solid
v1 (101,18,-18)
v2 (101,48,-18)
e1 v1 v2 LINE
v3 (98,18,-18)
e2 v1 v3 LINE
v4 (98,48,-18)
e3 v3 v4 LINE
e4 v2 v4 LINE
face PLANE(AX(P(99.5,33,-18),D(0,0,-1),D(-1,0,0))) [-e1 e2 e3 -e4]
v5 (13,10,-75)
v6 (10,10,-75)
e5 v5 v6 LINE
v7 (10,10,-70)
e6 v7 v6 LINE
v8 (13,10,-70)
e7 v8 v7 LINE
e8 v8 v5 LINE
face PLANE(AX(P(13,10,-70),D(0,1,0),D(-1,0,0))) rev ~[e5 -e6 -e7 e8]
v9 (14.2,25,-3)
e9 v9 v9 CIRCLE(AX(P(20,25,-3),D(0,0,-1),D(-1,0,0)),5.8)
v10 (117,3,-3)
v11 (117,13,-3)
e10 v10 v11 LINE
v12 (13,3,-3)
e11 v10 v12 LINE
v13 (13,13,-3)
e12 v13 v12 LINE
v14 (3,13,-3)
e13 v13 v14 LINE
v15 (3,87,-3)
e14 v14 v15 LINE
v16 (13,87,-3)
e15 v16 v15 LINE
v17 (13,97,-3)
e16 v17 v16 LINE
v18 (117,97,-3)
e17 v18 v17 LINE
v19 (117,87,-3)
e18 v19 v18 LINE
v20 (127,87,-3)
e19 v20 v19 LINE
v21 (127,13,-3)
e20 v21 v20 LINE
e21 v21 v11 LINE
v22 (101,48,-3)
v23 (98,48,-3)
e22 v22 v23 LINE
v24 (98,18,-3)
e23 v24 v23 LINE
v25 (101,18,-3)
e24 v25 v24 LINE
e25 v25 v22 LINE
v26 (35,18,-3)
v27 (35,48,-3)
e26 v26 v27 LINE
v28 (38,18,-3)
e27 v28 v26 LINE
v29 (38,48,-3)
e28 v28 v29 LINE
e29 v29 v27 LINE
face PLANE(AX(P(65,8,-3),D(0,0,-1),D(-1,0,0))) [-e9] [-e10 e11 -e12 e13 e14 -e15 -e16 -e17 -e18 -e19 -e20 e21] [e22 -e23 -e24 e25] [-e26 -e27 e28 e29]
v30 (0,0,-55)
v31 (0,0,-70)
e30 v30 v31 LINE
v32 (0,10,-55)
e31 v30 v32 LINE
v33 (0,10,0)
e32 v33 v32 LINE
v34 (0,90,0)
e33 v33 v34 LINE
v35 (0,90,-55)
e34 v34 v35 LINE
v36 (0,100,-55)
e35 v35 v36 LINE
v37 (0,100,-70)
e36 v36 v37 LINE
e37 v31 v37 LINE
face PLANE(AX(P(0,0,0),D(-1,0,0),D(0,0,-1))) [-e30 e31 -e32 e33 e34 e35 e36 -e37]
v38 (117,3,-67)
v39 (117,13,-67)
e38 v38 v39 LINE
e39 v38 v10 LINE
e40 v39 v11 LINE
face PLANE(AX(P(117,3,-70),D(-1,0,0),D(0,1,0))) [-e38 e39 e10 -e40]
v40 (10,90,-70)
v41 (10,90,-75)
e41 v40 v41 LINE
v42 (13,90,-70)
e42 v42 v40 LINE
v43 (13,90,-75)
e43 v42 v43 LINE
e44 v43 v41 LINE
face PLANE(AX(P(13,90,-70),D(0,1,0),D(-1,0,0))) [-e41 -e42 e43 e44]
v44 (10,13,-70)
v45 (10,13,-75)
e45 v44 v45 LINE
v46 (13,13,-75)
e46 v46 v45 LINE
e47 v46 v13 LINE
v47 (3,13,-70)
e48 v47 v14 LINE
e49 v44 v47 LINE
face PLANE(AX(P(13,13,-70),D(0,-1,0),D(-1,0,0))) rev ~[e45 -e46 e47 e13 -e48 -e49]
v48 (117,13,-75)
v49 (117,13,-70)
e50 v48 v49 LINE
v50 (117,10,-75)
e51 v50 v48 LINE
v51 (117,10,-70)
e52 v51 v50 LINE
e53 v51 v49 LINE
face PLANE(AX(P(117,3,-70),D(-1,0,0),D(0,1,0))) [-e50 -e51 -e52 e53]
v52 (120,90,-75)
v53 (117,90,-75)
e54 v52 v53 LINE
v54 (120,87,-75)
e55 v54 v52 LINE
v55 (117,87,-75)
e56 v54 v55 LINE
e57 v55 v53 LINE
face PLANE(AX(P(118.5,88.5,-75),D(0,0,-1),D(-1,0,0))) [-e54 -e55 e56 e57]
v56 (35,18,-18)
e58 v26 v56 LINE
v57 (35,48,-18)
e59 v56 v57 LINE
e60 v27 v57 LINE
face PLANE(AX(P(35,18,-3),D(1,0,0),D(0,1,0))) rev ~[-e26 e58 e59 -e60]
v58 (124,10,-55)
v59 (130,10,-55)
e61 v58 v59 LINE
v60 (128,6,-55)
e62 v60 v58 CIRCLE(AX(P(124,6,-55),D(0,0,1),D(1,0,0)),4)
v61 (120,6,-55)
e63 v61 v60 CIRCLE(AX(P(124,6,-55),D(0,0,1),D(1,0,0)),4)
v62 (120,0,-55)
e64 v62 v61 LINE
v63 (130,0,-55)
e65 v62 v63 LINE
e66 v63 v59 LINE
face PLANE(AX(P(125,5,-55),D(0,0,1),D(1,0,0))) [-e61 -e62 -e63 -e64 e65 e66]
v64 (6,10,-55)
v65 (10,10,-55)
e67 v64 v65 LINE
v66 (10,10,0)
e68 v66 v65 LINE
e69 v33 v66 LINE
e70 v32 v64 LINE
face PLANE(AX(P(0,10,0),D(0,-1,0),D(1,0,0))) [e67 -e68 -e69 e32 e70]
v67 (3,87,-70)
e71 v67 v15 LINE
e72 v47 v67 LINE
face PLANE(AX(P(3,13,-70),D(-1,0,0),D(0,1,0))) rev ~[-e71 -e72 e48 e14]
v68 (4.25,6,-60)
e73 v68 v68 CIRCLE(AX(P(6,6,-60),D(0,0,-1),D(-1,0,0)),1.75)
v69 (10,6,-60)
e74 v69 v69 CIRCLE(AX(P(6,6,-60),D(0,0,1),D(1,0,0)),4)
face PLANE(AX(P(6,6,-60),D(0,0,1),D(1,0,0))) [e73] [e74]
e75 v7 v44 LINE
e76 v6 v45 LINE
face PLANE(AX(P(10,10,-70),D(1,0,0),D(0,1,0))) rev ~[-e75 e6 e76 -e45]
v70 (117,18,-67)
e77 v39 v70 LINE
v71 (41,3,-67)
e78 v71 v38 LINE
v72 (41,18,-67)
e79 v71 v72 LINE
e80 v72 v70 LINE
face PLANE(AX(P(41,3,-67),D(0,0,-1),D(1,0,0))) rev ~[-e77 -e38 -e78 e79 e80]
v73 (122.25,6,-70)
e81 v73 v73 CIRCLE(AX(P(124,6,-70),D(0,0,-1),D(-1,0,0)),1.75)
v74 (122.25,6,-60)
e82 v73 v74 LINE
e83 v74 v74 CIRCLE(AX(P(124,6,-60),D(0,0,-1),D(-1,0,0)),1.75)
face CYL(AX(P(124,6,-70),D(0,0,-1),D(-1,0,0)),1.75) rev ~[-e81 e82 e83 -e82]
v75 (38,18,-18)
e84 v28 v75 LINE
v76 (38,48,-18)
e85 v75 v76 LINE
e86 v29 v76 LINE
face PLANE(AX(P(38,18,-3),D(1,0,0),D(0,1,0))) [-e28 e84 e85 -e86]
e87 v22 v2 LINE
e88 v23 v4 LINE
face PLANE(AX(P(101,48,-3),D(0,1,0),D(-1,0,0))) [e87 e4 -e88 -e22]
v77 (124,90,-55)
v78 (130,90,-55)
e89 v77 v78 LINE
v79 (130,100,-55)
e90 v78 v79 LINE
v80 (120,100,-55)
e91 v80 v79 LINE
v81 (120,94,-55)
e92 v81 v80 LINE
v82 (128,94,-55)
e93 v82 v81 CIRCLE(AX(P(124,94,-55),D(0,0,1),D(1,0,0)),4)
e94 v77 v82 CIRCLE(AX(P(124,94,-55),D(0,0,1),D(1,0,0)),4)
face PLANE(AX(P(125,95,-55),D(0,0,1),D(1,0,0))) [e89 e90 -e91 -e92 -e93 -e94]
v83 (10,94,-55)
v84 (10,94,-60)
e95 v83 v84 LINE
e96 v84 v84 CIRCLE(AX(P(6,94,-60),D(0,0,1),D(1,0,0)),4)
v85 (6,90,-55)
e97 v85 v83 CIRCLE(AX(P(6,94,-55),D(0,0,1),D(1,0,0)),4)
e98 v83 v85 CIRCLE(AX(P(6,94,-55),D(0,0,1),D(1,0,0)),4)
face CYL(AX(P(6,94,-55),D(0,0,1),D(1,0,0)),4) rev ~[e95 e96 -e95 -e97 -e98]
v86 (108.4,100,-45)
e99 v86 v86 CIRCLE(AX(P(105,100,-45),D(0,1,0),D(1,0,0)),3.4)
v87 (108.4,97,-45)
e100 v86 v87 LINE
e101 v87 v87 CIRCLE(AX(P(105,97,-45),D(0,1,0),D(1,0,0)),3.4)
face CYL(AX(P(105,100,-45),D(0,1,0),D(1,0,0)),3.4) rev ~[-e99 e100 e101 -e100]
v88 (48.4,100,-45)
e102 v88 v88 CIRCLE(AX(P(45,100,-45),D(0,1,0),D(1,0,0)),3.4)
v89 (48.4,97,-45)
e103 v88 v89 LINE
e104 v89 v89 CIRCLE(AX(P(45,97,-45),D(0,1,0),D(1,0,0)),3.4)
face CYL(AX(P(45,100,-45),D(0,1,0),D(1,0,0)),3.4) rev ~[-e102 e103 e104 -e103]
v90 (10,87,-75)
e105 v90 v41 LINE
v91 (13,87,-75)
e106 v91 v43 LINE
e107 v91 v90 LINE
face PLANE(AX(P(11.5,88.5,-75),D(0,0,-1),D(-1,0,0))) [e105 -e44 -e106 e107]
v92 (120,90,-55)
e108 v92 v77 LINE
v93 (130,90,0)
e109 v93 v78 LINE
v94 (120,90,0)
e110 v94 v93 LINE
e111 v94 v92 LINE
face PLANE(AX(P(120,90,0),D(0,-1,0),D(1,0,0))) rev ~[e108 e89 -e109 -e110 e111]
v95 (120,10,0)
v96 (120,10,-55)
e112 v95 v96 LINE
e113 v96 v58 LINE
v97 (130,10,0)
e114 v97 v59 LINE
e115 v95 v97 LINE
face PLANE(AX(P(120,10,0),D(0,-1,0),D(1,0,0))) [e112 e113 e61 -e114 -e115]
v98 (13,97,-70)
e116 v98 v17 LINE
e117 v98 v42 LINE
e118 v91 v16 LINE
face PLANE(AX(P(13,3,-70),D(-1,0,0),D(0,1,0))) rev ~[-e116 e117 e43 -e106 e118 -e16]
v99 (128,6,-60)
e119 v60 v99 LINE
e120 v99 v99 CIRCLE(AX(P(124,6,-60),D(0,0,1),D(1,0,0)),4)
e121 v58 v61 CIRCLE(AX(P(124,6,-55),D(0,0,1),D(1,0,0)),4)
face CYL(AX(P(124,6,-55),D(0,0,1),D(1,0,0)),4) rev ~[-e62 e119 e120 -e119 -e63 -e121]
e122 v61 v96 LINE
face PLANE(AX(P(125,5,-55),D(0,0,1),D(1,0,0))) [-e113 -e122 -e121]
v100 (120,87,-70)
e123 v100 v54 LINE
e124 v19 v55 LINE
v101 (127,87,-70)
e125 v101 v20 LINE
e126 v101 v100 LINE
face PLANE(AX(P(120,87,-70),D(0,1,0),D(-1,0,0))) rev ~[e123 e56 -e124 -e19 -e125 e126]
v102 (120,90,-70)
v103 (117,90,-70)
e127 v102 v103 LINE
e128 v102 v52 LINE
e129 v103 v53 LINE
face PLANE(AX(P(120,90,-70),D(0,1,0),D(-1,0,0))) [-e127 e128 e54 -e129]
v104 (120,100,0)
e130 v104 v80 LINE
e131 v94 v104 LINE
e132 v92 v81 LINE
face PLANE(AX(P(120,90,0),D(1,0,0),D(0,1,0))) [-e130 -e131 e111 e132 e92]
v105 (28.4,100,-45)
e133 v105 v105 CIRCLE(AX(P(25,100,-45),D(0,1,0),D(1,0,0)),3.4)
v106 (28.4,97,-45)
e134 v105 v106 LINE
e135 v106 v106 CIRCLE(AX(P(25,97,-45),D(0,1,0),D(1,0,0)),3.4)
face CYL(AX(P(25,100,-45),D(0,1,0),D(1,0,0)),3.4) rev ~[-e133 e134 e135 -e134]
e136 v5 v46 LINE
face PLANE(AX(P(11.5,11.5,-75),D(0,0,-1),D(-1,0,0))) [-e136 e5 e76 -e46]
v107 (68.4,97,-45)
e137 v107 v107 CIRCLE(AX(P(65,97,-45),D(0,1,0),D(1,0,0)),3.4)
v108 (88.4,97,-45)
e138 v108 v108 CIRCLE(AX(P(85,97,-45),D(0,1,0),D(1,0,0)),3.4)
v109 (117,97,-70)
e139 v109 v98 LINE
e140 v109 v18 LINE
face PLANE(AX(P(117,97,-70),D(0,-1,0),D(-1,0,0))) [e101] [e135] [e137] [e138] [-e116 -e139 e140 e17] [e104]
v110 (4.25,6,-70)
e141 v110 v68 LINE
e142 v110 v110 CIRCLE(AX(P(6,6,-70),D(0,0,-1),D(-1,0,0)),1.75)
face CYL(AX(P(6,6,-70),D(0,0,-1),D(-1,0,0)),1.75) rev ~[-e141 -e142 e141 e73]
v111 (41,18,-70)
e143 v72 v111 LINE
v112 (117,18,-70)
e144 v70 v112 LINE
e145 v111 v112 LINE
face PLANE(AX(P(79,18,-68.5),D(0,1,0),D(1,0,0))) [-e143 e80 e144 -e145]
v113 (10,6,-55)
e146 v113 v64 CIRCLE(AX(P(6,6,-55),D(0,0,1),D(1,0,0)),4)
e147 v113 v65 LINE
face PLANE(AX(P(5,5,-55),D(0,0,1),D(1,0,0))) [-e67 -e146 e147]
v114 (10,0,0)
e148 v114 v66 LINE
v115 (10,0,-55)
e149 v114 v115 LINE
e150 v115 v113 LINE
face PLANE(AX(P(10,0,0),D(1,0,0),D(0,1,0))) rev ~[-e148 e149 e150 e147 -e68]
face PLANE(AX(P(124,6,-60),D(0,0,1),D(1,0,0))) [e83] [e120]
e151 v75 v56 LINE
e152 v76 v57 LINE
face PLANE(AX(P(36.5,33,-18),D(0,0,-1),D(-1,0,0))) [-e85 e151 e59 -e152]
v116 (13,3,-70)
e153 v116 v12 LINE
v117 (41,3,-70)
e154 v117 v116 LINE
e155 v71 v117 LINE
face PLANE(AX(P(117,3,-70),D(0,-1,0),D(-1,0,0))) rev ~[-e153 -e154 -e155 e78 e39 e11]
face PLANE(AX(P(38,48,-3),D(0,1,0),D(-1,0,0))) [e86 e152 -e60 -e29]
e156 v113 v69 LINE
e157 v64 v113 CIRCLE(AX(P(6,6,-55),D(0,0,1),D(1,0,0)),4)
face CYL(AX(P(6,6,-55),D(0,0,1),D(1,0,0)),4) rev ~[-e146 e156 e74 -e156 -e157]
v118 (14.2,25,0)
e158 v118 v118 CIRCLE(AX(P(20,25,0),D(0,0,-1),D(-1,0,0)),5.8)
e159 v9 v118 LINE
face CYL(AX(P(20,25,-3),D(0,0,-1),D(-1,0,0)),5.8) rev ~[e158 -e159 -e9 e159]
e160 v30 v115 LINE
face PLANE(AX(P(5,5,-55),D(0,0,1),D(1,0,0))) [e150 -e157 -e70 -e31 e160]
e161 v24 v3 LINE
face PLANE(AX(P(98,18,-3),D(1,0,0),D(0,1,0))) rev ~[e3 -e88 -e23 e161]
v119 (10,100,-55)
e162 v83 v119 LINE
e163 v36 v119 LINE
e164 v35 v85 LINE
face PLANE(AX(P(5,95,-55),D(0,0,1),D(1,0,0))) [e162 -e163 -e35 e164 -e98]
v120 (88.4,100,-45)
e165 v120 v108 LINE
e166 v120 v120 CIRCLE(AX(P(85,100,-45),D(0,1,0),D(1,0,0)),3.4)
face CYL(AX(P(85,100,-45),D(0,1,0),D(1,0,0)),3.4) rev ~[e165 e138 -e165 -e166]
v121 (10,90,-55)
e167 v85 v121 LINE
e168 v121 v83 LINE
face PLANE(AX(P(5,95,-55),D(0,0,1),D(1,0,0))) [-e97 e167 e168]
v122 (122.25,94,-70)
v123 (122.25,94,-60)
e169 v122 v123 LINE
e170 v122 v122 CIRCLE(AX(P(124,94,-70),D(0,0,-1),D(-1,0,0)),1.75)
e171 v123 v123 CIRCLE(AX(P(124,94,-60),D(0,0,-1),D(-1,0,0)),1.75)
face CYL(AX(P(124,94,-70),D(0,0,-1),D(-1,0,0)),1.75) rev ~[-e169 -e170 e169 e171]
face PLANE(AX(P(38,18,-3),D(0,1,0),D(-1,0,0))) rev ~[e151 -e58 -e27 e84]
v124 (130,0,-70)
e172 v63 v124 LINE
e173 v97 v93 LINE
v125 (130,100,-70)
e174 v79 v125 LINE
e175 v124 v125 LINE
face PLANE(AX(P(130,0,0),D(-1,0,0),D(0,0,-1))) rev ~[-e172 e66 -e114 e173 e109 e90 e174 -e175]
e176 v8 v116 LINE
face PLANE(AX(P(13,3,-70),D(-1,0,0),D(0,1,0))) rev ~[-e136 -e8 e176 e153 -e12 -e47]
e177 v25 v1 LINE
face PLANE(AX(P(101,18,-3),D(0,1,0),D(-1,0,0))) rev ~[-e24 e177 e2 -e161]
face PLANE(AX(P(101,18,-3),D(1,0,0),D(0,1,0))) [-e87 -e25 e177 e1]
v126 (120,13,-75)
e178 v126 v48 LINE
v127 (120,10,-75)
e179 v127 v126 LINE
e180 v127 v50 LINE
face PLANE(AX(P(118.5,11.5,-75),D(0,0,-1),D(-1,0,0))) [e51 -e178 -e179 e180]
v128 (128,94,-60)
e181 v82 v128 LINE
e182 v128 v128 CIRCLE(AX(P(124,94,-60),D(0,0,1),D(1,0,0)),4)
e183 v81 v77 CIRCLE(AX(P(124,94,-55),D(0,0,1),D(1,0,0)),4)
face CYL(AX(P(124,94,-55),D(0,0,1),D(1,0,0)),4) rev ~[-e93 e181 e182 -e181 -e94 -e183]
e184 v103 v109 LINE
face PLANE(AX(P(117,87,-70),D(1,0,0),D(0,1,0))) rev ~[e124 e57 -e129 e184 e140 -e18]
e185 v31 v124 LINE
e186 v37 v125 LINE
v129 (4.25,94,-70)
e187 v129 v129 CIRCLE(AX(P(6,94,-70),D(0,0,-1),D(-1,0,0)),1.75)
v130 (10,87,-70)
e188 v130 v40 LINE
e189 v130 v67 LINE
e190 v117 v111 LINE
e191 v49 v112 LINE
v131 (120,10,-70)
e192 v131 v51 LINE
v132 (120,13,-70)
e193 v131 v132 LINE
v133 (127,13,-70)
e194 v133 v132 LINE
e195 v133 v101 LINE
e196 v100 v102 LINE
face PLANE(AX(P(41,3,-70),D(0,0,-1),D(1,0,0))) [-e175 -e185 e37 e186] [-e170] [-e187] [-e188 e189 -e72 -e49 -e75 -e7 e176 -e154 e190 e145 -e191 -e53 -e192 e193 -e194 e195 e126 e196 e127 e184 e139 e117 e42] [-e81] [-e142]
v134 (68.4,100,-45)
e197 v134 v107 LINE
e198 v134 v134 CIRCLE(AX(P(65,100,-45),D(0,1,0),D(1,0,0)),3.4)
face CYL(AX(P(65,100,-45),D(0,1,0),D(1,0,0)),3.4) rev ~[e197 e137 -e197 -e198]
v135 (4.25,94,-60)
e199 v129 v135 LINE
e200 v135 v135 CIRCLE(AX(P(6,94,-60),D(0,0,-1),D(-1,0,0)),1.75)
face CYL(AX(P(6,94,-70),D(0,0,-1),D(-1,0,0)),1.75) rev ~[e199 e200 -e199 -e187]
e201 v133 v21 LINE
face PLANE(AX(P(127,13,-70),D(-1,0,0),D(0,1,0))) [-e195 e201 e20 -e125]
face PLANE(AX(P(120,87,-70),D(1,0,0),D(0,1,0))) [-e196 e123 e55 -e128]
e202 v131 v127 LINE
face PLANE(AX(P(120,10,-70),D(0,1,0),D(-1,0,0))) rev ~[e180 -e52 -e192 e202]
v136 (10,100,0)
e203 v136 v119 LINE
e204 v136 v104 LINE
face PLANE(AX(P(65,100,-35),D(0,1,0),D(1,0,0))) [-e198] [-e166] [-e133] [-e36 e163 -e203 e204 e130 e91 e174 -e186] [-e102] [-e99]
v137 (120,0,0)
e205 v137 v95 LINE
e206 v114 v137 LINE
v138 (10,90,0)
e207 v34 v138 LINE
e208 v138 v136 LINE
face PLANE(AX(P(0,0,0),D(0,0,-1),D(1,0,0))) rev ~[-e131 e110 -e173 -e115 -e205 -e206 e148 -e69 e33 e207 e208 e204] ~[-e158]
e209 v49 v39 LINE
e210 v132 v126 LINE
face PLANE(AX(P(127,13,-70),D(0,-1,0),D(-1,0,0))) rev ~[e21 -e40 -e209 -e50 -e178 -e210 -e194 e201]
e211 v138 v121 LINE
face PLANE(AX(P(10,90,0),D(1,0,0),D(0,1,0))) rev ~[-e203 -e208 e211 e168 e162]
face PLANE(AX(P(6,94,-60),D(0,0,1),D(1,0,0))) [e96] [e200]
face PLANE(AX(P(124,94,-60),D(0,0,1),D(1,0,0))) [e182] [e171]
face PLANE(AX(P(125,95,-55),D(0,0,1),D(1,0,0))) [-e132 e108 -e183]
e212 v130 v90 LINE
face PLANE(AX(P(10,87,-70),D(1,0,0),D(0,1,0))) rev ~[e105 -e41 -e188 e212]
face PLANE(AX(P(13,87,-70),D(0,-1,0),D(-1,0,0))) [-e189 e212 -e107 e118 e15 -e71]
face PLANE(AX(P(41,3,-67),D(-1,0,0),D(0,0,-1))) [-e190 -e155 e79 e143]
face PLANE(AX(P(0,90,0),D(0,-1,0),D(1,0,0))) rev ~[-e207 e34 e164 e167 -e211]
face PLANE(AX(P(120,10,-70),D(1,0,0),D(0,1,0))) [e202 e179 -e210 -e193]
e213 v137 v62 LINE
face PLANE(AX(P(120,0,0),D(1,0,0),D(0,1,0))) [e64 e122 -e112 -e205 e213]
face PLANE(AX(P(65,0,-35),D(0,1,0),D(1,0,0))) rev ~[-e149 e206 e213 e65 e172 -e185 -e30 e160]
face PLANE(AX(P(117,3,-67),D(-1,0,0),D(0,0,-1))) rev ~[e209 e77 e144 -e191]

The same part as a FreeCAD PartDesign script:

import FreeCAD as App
import Part
import Sketcher

doc = App.newDocument("Part")
body = doc.addObject("PartDesign::Body", "Body")

sketch1 = doc.addObject("Sketcher::SketchObject", "Sketch")
body.addObject(sketch1)
sketch1.AttachmentSupport = (doc.XZ_Plane, [""])
sketch1.MapMode = "FlatFace"
sketch1.addGeometry(Part.LineSegment(App.Vector(0, -70, 0), App.Vector(0, 0, 0)), False)
sketch1.addGeometry(Part.LineSegment(App.Vector(0, 0, 0), App.Vector(130, 0, 0)), False)
sketch1.addGeometry(Part.LineSegment(App.Vector(130, 0, 0), App.Vector(130, -70, 0)), False)
sketch1.addGeometry(Part.LineSegment(App.Vector(130, -70, 0), App.Vector(0, -70, 0)), False)
sketch1.addConstraint(Sketcher.Constraint("Coincident", 0, 2, 1, 1))
sketch1.addConstraint(Sketcher.Constraint("Coincident", 1, 2, 2, 1))
sketch1.addConstraint(Sketcher.Constraint("Coincident", 2, 2, 3, 1))
sketch1.addConstraint(Sketcher.Constraint("Coincident", 3, 2, 0, 1))
sketch1.addConstraint(Sketcher.Constraint("Vertical", 0))
sketch1.addConstraint(Sketcher.Constraint("Horizontal", 1))
sketch1.addConstraint(Sketcher.Constraint("Vertical", 2))
sketch1.addConstraint(Sketcher.Constraint("Horizontal", 3))
sketch1.addConstraint(Sketcher.Constraint("Coincident", 0, 2, -1, 1))
sketch1.addConstraint(Sketcher.Constraint("DistanceX", 1, 1, 1, 2, 130.0))
sketch1.addConstraint(Sketcher.Constraint("DistanceY", 0, 1, 0, 2, 70.0))
pad1 = doc.addObject("PartDesign::Pad", "Pad")
body.addObject(pad1)
pad1.Profile = sketch1
pad1.Length = 100
pad1.Reversed = True

sketch2 = doc.addObject("Sketcher::SketchObject", "Sketch001")
body.addObject(sketch2)
sketch2.AttachmentSupport = (doc.XY_Plane, [""])
sketch2.MapMode = "FlatFace"
sketch2.AttachmentOffset = App.Placement(App.Vector(0, 0, -70), App.Rotation())
sketch2.addGeometry(Part.LineSegment(App.Vector(117, 87, 0), App.Vector(117, 13, 0)), False)
sketch2.addGeometry(Part.LineSegment(App.Vector(117, 13, 0), App.Vector(13, 13, 0)), False)
sketch2.addGeometry(Part.LineSegment(App.Vector(13, 13, 0), App.Vector(13, 87, 0)), False)
sketch2.addGeometry(Part.LineSegment(App.Vector(13, 87, 0), App.Vector(117, 87, 0)), False)
sketch2.addConstraint(Sketcher.Constraint("Coincident", 0, 2, 1, 1))
sketch2.addConstraint(Sketcher.Constraint("Coincident", 1, 2, 2, 1))
sketch2.addConstraint(Sketcher.Constraint("Coincident", 2, 2, 3, 1))
sketch2.addConstraint(Sketcher.Constraint("Coincident", 3, 2, 0, 1))
sketch2.addConstraint(Sketcher.Constraint("Vertical", 0))
sketch2.addConstraint(Sketcher.Constraint("Horizontal", 1))
sketch2.addConstraint(Sketcher.Constraint("Vertical", 2))
sketch2.addConstraint(Sketcher.Constraint("Horizontal", 3))
sketch2.addConstraint(Sketcher.Constraint("DistanceX", 1, 2, 1, 1, 104.0))
sketch2.addConstraint(Sketcher.Constraint("DistanceY", 0, 2, 0, 1, 74.0))
sketch2.addConstraint(Sketcher.Constraint("DistanceX", -1, 1, 0, 2, 117.0))
sketch2.addConstraint(Sketcher.Constraint("DistanceY", -1, 1, 0, 2, 13.0))
pocket1 = doc.addObject("PartDesign::Pocket", "Pocket")
body.addObject(pocket1)
pocket1.Profile = sketch2
pocket1.Length = 67
pocket1.Reversed = True

sketch3 = doc.addObject("Sketcher::SketchObject", "Sketch002")
body.addObject(sketch3)
sketch3.AttachmentSupport = (doc.XY_Plane, [""])
sketch3.MapMode = "FlatFace"
sketch3.addGeometry(Part.LineSegment(App.Vector(0, 100, 0), App.Vector(0, 90, 0)), False)
sketch3.addGeometry(Part.LineSegment(App.Vector(0, 90, 0), App.Vector(10, 90, 0)), False)
sketch3.addGeometry(Part.LineSegment(App.Vector(10, 90, 0), App.Vector(10, 100, 0)), False)
sketch3.addGeometry(Part.LineSegment(App.Vector(10, 100, 0), App.Vector(0, 100, 0)), False)
sketch3.addGeometry(Part.LineSegment(App.Vector(120, 100, 0), App.Vector(120, 90, 0)), False)
sketch3.addGeometry(Part.LineSegment(App.Vector(120, 90, 0), App.Vector(130, 90, 0)), False)
sketch3.addGeometry(Part.LineSegment(App.Vector(130, 90, 0), App.Vector(130, 100, 0)), False)
sketch3.addGeometry(Part.LineSegment(App.Vector(130, 100, 0), App.Vector(120, 100, 0)), False)
sketch3.addGeometry(Part.LineSegment(App.Vector(0, 10, 0), App.Vector(0, 0, 0)), False)
sketch3.addGeometry(Part.LineSegment(App.Vector(0, 0, 0), App.Vector(10, 0, 0)), False)
sketch3.addGeometry(Part.LineSegment(App.Vector(10, 0, 0), App.Vector(10, 10, 0)), False)
sketch3.addGeometry(Part.LineSegment(App.Vector(10, 10, 0), App.Vector(0, 10, 0)), False)
sketch3.addGeometry(Part.LineSegment(App.Vector(120, 10, 0), App.Vector(120, 0, 0)), False)
sketch3.addGeometry(Part.LineSegment(App.Vector(120, 0, 0), App.Vector(130, 0, 0)), False)
sketch3.addGeometry(Part.LineSegment(App.Vector(130, 0, 0), App.Vector(130, 10, 0)), False)
sketch3.addGeometry(Part.LineSegment(App.Vector(130, 10, 0), App.Vector(120, 10, 0)), False)
sketch3.addConstraint(Sketcher.Constraint("Coincident", 0, 2, 1, 1))
sketch3.addConstraint(Sketcher.Constraint("Coincident", 1, 2, 2, 1))
sketch3.addConstraint(Sketcher.Constraint("Coincident", 2, 2, 3, 1))
sketch3.addConstraint(Sketcher.Constraint("Coincident", 3, 2, 0, 1))
sketch3.addConstraint(Sketcher.Constraint("Coincident", 4, 2, 5, 1))
sketch3.addConstraint(Sketcher.Constraint("Coincident", 5, 2, 6, 1))
sketch3.addConstraint(Sketcher.Constraint("Coincident", 6, 2, 7, 1))
sketch3.addConstraint(Sketcher.Constraint("Coincident", 7, 2, 4, 1))
sketch3.addConstraint(Sketcher.Constraint("Coincident", 8, 2, 9, 1))
sketch3.addConstraint(Sketcher.Constraint("Coincident", 9, 2, 10, 1))
sketch3.addConstraint(Sketcher.Constraint("Coincident", 10, 2, 11, 1))
sketch3.addConstraint(Sketcher.Constraint("Coincident", 11, 2, 8, 1))
sketch3.addConstraint(Sketcher.Constraint("Coincident", 12, 2, 13, 1))
sketch3.addConstraint(Sketcher.Constraint("Coincident", 13, 2, 14, 1))
sketch3.addConstraint(Sketcher.Constraint("Coincident", 14, 2, 15, 1))
sketch3.addConstraint(Sketcher.Constraint("Coincident", 15, 2, 12, 1))
sketch3.addConstraint(Sketcher.Constraint("Vertical", 0))
sketch3.addConstraint(Sketcher.Constraint("Horizontal", 1))
sketch3.addConstraint(Sketcher.Constraint("Vertical", 2))
sketch3.addConstraint(Sketcher.Constraint("Horizontal", 3))
sketch3.addConstraint(Sketcher.Constraint("Vertical", 4))
sketch3.addConstraint(Sketcher.Constraint("Horizontal", 5))
sketch3.addConstraint(Sketcher.Constraint("Vertical", 6))
sketch3.addConstraint(Sketcher.Constraint("Horizontal", 7))
sketch3.addConstraint(Sketcher.Constraint("Vertical", 8))
sketch3.addConstraint(Sketcher.Constraint("Horizontal", 9))
sketch3.addConstraint(Sketcher.Constraint("Vertical", 10))
sketch3.addConstraint(Sketcher.Constraint("Horizontal", 11))
sketch3.addConstraint(Sketcher.Constraint("Vertical", 12))
sketch3.addConstraint(Sketcher.Constraint("Horizontal", 13))
sketch3.addConstraint(Sketcher.Constraint("Vertical", 14))
sketch3.addConstraint(Sketcher.Constraint("Horizontal", 15))
sketch3.addConstraint(Sketcher.Constraint("Coincident", 8, 2, -1, 1))
sketch3.addConstraint(Sketcher.Constraint("PointOnObject", 0, 2, -2))
sketch3.addConstraint(Sketcher.Constraint("PointOnObject", 12, 2, -1))
sketch3.addConstraint(Sketcher.Constraint("Horizontal", 1, 2, 4, 2))
sketch3.addConstraint(Sketcher.Constraint("Horizontal", 3, 2, 6, 2))
sketch3.addConstraint(Sketcher.Constraint("Horizontal", 11, 2, 14, 2))
sketch3.addConstraint(Sketcher.Constraint("Vertical", 2, 2, 9, 2))
sketch3.addConstraint(Sketcher.Constraint("Vertical", 7, 2, 12, 2))
sketch3.addConstraint(Sketcher.Constraint("Vertical", 6, 2, 13, 2))
sketch3.addConstraint(Sketcher.Constraint("Equal", 3, 5))
sketch3.addConstraint(Sketcher.Constraint("Equal", 15, 0))
sketch3.addConstraint(Sketcher.Constraint("Equal", 6, 8))
sketch3.addConstraint(Sketcher.Constraint("DistanceX", 1, 1, 1, 2, 10.0))
sketch3.addConstraint(Sketcher.Constraint("DistanceY", -1, 1, 0, 2, 90.0))
sketch3.addConstraint(Sketcher.Constraint("DistanceX", -1, 1, 4, 2, 120.0))
pocket2 = doc.addObject("PartDesign::Pocket", "Pocket001")
body.addObject(pocket2)
pocket2.Profile = sketch3
pocket2.Length = 55

sketch4 = doc.addObject("Sketcher::SketchObject", "Sketch003")
body.addObject(sketch4)
sketch4.AttachmentSupport = (doc.XY_Plane, [""])
sketch4.MapMode = "FlatFace"
sketch4.AttachmentOffset = App.Placement(App.Vector(0, 0, -70), App.Rotation())
sketch4.addGeometry(Part.LineSegment(App.Vector(117, 97, 0), App.Vector(117, 87, 0)), False)
sketch4.addGeometry(Part.LineSegment(App.Vector(117, 87, 0), App.Vector(13, 87, 0)), False)
sketch4.addGeometry(Part.LineSegment(App.Vector(13, 87, 0), App.Vector(13, 97, 0)), False)
sketch4.addGeometry(Part.LineSegment(App.Vector(13, 97, 0), App.Vector(117, 97, 0)), False)
sketch4.addGeometry(Part.LineSegment(App.Vector(117, 13, 0), App.Vector(117, 3, 0)), False)
sketch4.addGeometry(Part.LineSegment(App.Vector(117, 3, 0), App.Vector(13, 3, 0)), False)
sketch4.addGeometry(Part.LineSegment(App.Vector(13, 3, 0), App.Vector(13, 13, 0)), False)
sketch4.addGeometry(Part.LineSegment(App.Vector(13, 13, 0), App.Vector(117, 13, 0)), False)
sketch4.addConstraint(Sketcher.Constraint("Coincident", 0, 2, 1, 1))
sketch4.addConstraint(Sketcher.Constraint("Coincident", 1, 2, 2, 1))
sketch4.addConstraint(Sketcher.Constraint("Coincident", 2, 2, 3, 1))
sketch4.addConstraint(Sketcher.Constraint("Coincident", 3, 2, 0, 1))
sketch4.addConstraint(Sketcher.Constraint("Coincident", 4, 2, 5, 1))
sketch4.addConstraint(Sketcher.Constraint("Coincident", 5, 2, 6, 1))
sketch4.addConstraint(Sketcher.Constraint("Coincident", 6, 2, 7, 1))
sketch4.addConstraint(Sketcher.Constraint("Coincident", 7, 2, 4, 1))
sketch4.addConstraint(Sketcher.Constraint("Vertical", 0))
sketch4.addConstraint(Sketcher.Constraint("Horizontal", 1))
sketch4.addConstraint(Sketcher.Constraint("Vertical", 2))
sketch4.addConstraint(Sketcher.Constraint("Horizontal", 3))
sketch4.addConstraint(Sketcher.Constraint("Vertical", 4))
sketch4.addConstraint(Sketcher.Constraint("Horizontal", 5))
sketch4.addConstraint(Sketcher.Constraint("Vertical", 6))
sketch4.addConstraint(Sketcher.Constraint("Horizontal", 7))
sketch4.addConstraint(Sketcher.Constraint("Vertical", 3, 2, 4, 2))
sketch4.addConstraint(Sketcher.Constraint("Vertical", 2, 2, 5, 2))
sketch4.addConstraint(Sketcher.Constraint("Equal", 2, 4))
sketch4.addConstraint(Sketcher.Constraint("DistanceX", 1, 2, 1, 1, 104.0))
sketch4.addConstraint(Sketcher.Constraint("DistanceY", 0, 2, 0, 1, 10.0))
sketch4.addConstraint(Sketcher.Constraint("DistanceX", -1, 1, 0, 2, 117.0))
sketch4.addConstraint(Sketcher.Constraint("DistanceY", -1, 1, 0, 2, 87.0))
sketch4.addConstraint(Sketcher.Constraint("DistanceY", -1, 1, 4, 2, 3.0))
pocket3 = doc.addObject("PartDesign::Pocket", "Pocket002")
body.addObject(pocket3)
pocket3.Profile = sketch4
pocket3.Length = 67
pocket3.Reversed = True

sketch5 = doc.addObject("Sketcher::SketchObject", "Sketch004")
body.addObject(sketch5)
sketch5.AttachmentSupport = (doc.XY_Plane, [""])
sketch5.MapMode = "FlatFace"
sketch5.AttachmentOffset = App.Placement(App.Vector(0, 0, -70), App.Rotation())
sketch5.addGeometry(Part.LineSegment(App.Vector(127, 87, 0), App.Vector(127, 13, 0)), False)
sketch5.addGeometry(Part.LineSegment(App.Vector(127, 13, 0), App.Vector(117, 13, 0)), False)
sketch5.addGeometry(Part.LineSegment(App.Vector(117, 13, 0), App.Vector(117, 87, 0)), False)
sketch5.addGeometry(Part.LineSegment(App.Vector(117, 87, 0), App.Vector(127, 87, 0)), False)
sketch5.addGeometry(Part.LineSegment(App.Vector(13, 87, 0), App.Vector(13, 13, 0)), False)
sketch5.addGeometry(Part.LineSegment(App.Vector(13, 13, 0), App.Vector(3, 13, 0)), False)
sketch5.addGeometry(Part.LineSegment(App.Vector(3, 13, 0), App.Vector(3, 87, 0)), False)
sketch5.addGeometry(Part.LineSegment(App.Vector(3, 87, 0), App.Vector(13, 87, 0)), False)
sketch5.addConstraint(Sketcher.Constraint("Coincident", 0, 2, 1, 1))
sketch5.addConstraint(Sketcher.Constraint("Coincident", 1, 2, 2, 1))
sketch5.addConstraint(Sketcher.Constraint("Coincident", 2, 2, 3, 1))
sketch5.addConstraint(Sketcher.Constraint("Coincident", 3, 2, 0, 1))
sketch5.addConstraint(Sketcher.Constraint("Coincident", 4, 2, 5, 1))
sketch5.addConstraint(Sketcher.Constraint("Coincident", 5, 2, 6, 1))
sketch5.addConstraint(Sketcher.Constraint("Coincident", 6, 2, 7, 1))
sketch5.addConstraint(Sketcher.Constraint("Coincident", 7, 2, 4, 1))
sketch5.addConstraint(Sketcher.Constraint("Vertical", 0))
sketch5.addConstraint(Sketcher.Constraint("Horizontal", 1))
sketch5.addConstraint(Sketcher.Constraint("Vertical", 2))
sketch5.addConstraint(Sketcher.Constraint("Horizontal", 3))
sketch5.addConstraint(Sketcher.Constraint("Vertical", 4))
sketch5.addConstraint(Sketcher.Constraint("Horizontal", 5))
sketch5.addConstraint(Sketcher.Constraint("Vertical", 6))
sketch5.addConstraint(Sketcher.Constraint("Horizontal", 7))
sketch5.addConstraint(Sketcher.Constraint("Horizontal", 1, 2, 4, 2))
sketch5.addConstraint(Sketcher.Constraint("Horizontal", 3, 2, 6, 2))
sketch5.addConstraint(Sketcher.Constraint("Equal", 3, 5))
sketch5.addConstraint(Sketcher.Constraint("DistanceX", 1, 2, 1, 1, 10.0))
sketch5.addConstraint(Sketcher.Constraint("DistanceY", 0, 2, 0, 1, 74.0))
sketch5.addConstraint(Sketcher.Constraint("DistanceX", -1, 1, 0, 2, 127.0))
sketch5.addConstraint(Sketcher.Constraint("DistanceY", -1, 1, 0, 2, 13.0))
sketch5.addConstraint(Sketcher.Constraint("DistanceX", -1, 1, 4, 2, 13.0))
pocket4 = doc.addObject("PartDesign::Pocket", "Pocket003")
body.addObject(pocket4)
pocket4.Profile = sketch5
pocket4.Length = 67
pocket4.Reversed = True

sketch6 = doc.addObject("Sketcher::SketchObject", "Sketch005")
body.addObject(sketch6)
sketch6.AttachmentSupport = (doc.XY_Plane, [""])
sketch6.MapMode = "FlatFace"
sketch6.AttachmentOffset = App.Placement(App.Vector(0, 0, -70), App.Rotation())
sketch6.addGeometry(Part.Circle(App.Vector(124, 94, 0), App.Vector(0, 0, 1), 1.8), False)
sketch6.addGeometry(Part.Circle(App.Vector(124, 6, 0), App.Vector(0, 0, 1), 1.8), False)
sketch6.addGeometry(Part.Circle(App.Vector(6, 94, 0), App.Vector(0, 0, 1), 1.8), False)
sketch6.addGeometry(Part.Circle(App.Vector(6, 6, 0), App.Vector(0, 0, 1), 1.8), False)
sketch6.addConstraint(Sketcher.Constraint("Equal", 0, 1))
sketch6.addConstraint(Sketcher.Constraint("Equal", 1, 2))
sketch6.addConstraint(Sketcher.Constraint("Equal", 2, 3))
sketch6.addConstraint(Sketcher.Constraint("Horizontal", 0, 3, 2, 3))
sketch6.addConstraint(Sketcher.Constraint("Horizontal", 1, 3, 3, 3))
sketch6.addConstraint(Sketcher.Constraint("Vertical", 0, 3, 1, 3))
sketch6.addConstraint(Sketcher.Constraint("Vertical", 2, 3, 3, 3))
sketch6.addConstraint(Sketcher.Constraint("Diameter", 0, 3.5))
sketch6.addConstraint(Sketcher.Constraint("DistanceX", -1, 1, 0, 3, 124.0))
sketch6.addConstraint(Sketcher.Constraint("DistanceY", -1, 1, 0, 3, 94.0))
sketch6.addConstraint(Sketcher.Constraint("DistanceY", -1, 1, 1, 3, 6.0))
sketch6.addConstraint(Sketcher.Constraint("DistanceX", -1, 1, 2, 3, 6.0))
pocket5 = doc.addObject("PartDesign::Pocket", "Pocket004")
body.addObject(pocket5)
pocket5.Profile = sketch6
pocket5.Length = 67
pocket5.Reversed = True

sketch7 = doc.addObject("Sketcher::SketchObject", "Sketch006")
body.addObject(sketch7)
sketch7.AttachmentSupport = (doc.XY_Plane, [""])
sketch7.MapMode = "FlatFace"
sketch7.AttachmentOffset = App.Placement(App.Vector(0, 0, -55), App.Rotation())
sketch7.addGeometry(Part.Circle(App.Vector(124, 94, 0), App.Vector(0, 0, 1), 4), False)
sketch7.addConstraint(Sketcher.Constraint("Diameter", 0, 8.0))
sketch7.addConstraint(Sketcher.Constraint("DistanceX", -1, 1, 0, 3, 124.0))
sketch7.addConstraint(Sketcher.Constraint("DistanceY", -1, 1, 0, 3, 94.0))
pocket6 = doc.addObject("PartDesign::Pocket", "Pocket005")
body.addObject(pocket6)
pocket6.Profile = sketch7
pocket6.Length = 5

sketch8 = doc.addObject("Sketcher::SketchObject", "Sketch007")
body.addObject(sketch8)
sketch8.AttachmentSupport = (doc.XY_Plane, [""])
sketch8.MapMode = "FlatFace"
sketch8.AttachmentOffset = App.Placement(App.Vector(0, 0, -55), App.Rotation())
sketch8.addGeometry(Part.Circle(App.Vector(124, 6, 0), App.Vector(0, 0, 1), 4), False)
sketch8.addConstraint(Sketcher.Constraint("Diameter", 0, 8.0))
sketch8.addConstraint(Sketcher.Constraint("DistanceX", -1, 1, 0, 3, 124.0))
sketch8.addConstraint(Sketcher.Constraint("DistanceY", -1, 1, 0, 3, 6.0))
pocket7 = doc.addObject("PartDesign::Pocket", "Pocket006")
body.addObject(pocket7)
pocket7.Profile = sketch8
pocket7.Length = 5

sketch9 = doc.addObject("Sketcher::SketchObject", "Sketch008")
body.addObject(sketch9)
sketch9.AttachmentSupport = (doc.XY_Plane, [""])
sketch9.MapMode = "FlatFace"
sketch9.AttachmentOffset = App.Placement(App.Vector(0, 0, -55), App.Rotation())
sketch9.addGeometry(Part.Circle(App.Vector(6, 6, 0), App.Vector(0, 0, 1), 4), False)
sketch9.addConstraint(Sketcher.Constraint("Diameter", 0, 8.0))
sketch9.addConstraint(Sketcher.Constraint("DistanceX", -1, 1, 0, 3, 6.0))
sketch9.addConstraint(Sketcher.Constraint("DistanceY", -1, 1, 0, 3, 6.0))
pocket8 = doc.addObject("PartDesign::Pocket", "Pocket007")
body.addObject(pocket8)
pocket8.Profile = sketch9
pocket8.Length = 5

sketch10 = doc.addObject("Sketcher::SketchObject", "Sketch009")
body.addObject(sketch10)
sketch10.AttachmentSupport = (doc.XY_Plane, [""])
sketch10.MapMode = "FlatFace"
sketch10.AttachmentOffset = App.Placement(App.Vector(0, 0, -55), App.Rotation())
sketch10.addGeometry(Part.Circle(App.Vector(6, 94, 0), App.Vector(0, 0, 1), 4), False)
sketch10.addConstraint(Sketcher.Constraint("Diameter", 0, 8.0))
sketch10.addConstraint(Sketcher.Constraint("DistanceX", -1, 1, 0, 3, 6.0))
sketch10.addConstraint(Sketcher.Constraint("DistanceY", -1, 1, 0, 3, 94.0))
pocket9 = doc.addObject("PartDesign::Pocket", "Pocket008")
body.addObject(pocket9)
pocket9.Profile = sketch10
pocket9.Length = 5

sketch11 = doc.addObject("Sketcher::SketchObject", "Sketch010")
body.addObject(sketch11)
sketch11.AttachmentSupport = (doc.XY_Plane, [""])
sketch11.MapMode = "FlatFace"
sketch11.AttachmentOffset = App.Placement(App.Vector(0, 0, -70), App.Rotation())
sketch11.addGeometry(Part.LineSegment(App.Vector(120, 90, 0), App.Vector(120, 87, 0)), False)
sketch11.addGeometry(Part.LineSegment(App.Vector(120, 87, 0), App.Vector(117, 87, 0)), False)
sketch11.addGeometry(Part.LineSegment(App.Vector(117, 87, 0), App.Vector(117, 90, 0)), False)
sketch11.addGeometry(Part.LineSegment(App.Vector(117, 90, 0), App.Vector(120, 90, 0)), False)
sketch11.addGeometry(Part.LineSegment(App.Vector(120, 13, 0), App.Vector(120, 10, 0)), False)
sketch11.addGeometry(Part.LineSegment(App.Vector(120, 10, 0), App.Vector(117, 10, 0)), False)
sketch11.addGeometry(Part.LineSegment(App.Vector(117, 10, 0), App.Vector(117, 13, 0)), False)
sketch11.addGeometry(Part.LineSegment(App.Vector(117, 13, 0), App.Vector(120, 13, 0)), False)
sketch11.addGeometry(Part.LineSegment(App.Vector(13, 13, 0), App.Vector(13, 10, 0)), False)
sketch11.addGeometry(Part.LineSegment(App.Vector(13, 10, 0), App.Vector(10, 10, 0)), False)
sketch11.addGeometry(Part.LineSegment(App.Vector(10, 10, 0), App.Vector(10, 13, 0)), False)
sketch11.addGeometry(Part.LineSegment(App.Vector(10, 13, 0), App.Vector(13, 13, 0)), False)
sketch11.addGeometry(Part.LineSegment(App.Vector(13, 90, 0), App.Vector(13, 87, 0)), False)
sketch11.addGeometry(Part.LineSegment(App.Vector(13, 87, 0), App.Vector(10, 87, 0)), False)
sketch11.addGeometry(Part.LineSegment(App.Vector(10, 87, 0), App.Vector(10, 90, 0)), False)
sketch11.addGeometry(Part.LineSegment(App.Vector(10, 90, 0), App.Vector(13, 90, 0)), False)
sketch11.addConstraint(Sketcher.Constraint("Coincident", 0, 2, 1, 1))
sketch11.addConstraint(Sketcher.Constraint("Coincident", 1, 2, 2, 1))
sketch11.addConstraint(Sketcher.Constraint("Coincident", 2, 2, 3, 1))
sketch11.addConstraint(Sketcher.Constraint("Coincident", 3, 2, 0, 1))
sketch11.addConstraint(Sketcher.Constraint("Coincident", 4, 2, 5, 1))
sketch11.addConstraint(Sketcher.Constraint("Coincident", 5, 2, 6, 1))
sketch11.addConstraint(Sketcher.Constraint("Coincident", 6, 2, 7, 1))
sketch11.addConstraint(Sketcher.Constraint("Coincident", 7, 2, 4, 1))
sketch11.addConstraint(Sketcher.Constraint("Coincident", 8, 2, 9, 1))
sketch11.addConstraint(Sketcher.Constraint("Coincident", 9, 2, 10, 1))
sketch11.addConstraint(Sketcher.Constraint("Coincident", 10, 2, 11, 1))
sketch11.addConstraint(Sketcher.Constraint("Coincident", 11, 2, 8, 1))
sketch11.addConstraint(Sketcher.Constraint("Coincident", 12, 2, 13, 1))
sketch11.addConstraint(Sketcher.Constraint("Coincident", 13, 2, 14, 1))
sketch11.addConstraint(Sketcher.Constraint("Coincident", 14, 2, 15, 1))
sketch11.addConstraint(Sketcher.Constraint("Coincident", 15, 2, 12, 1))
sketch11.addConstraint(Sketcher.Constraint("Vertical", 0))
sketch11.addConstraint(Sketcher.Constraint("Horizontal", 1))
sketch11.addConstraint(Sketcher.Constraint("Vertical", 2))
sketch11.addConstraint(Sketcher.Constraint("Horizontal", 3))
sketch11.addConstraint(Sketcher.Constraint("Vertical", 4))
sketch11.addConstraint(Sketcher.Constraint("Horizontal", 5))
sketch11.addConstraint(Sketcher.Constraint("Vertical", 6))
sketch11.addConstraint(Sketcher.Constraint("Horizontal", 7))
sketch11.addConstraint(Sketcher.Constraint("Vertical", 8))
sketch11.addConstraint(Sketcher.Constraint("Horizontal", 9))
sketch11.addConstraint(Sketcher.Constraint("Vertical", 10))
sketch11.addConstraint(Sketcher.Constraint("Horizontal", 11))
sketch11.addConstraint(Sketcher.Constraint("Vertical", 12))
sketch11.addConstraint(Sketcher.Constraint("Horizontal", 13))
sketch11.addConstraint(Sketcher.Constraint("Vertical", 14))
sketch11.addConstraint(Sketcher.Constraint("Horizontal", 15))
sketch11.addConstraint(Sketcher.Constraint("Horizontal", 5, 2, 8, 2))
sketch11.addConstraint(Sketcher.Constraint("Horizontal", 7, 2, 10, 2))
sketch11.addConstraint(Sketcher.Constraint("Horizontal", 1, 2, 12, 2))
sketch11.addConstraint(Sketcher.Constraint("Horizontal", 3, 2, 14, 2))
sketch11.addConstraint(Sketcher.Constraint("Vertical", 3, 2, 4, 2))
sketch11.addConstraint(Sketcher.Constraint("Vertical", 2, 2, 5, 2))
sketch11.addConstraint(Sketcher.Constraint("Vertical", 11, 2, 12, 2))
sketch11.addConstraint(Sketcher.Constraint("Vertical", 10, 2, 13, 2))
sketch11.addConstraint(Sketcher.Constraint("Equal", 7, 9))
sketch11.addConstraint(Sketcher.Constraint("Equal", 15, 0))
sketch11.addConstraint(Sketcher.Constraint("Equal", 2, 4))
sketch11.addConstraint(Sketcher.Constraint("DistanceX", 1, 2, 1, 1, 3.0))
sketch11.addConstraint(Sketcher.Constraint("DistanceX", -1, 1, 0, 2, 120.0))
sketch11.addConstraint(Sketcher.Constraint("DistanceY", -1, 1, 0, 2, 87.0))
sketch11.addConstraint(Sketcher.Constraint("DistanceY", -1, 1, 4, 2, 10.0))
sketch11.addConstraint(Sketcher.Constraint("DistanceX", -1, 1, 8, 2, 13.0))
pad2 = doc.addObject("PartDesign::Pad", "Pad001")
body.addObject(pad2)
pad2.Profile = sketch11
pad2.Length = 5
pad2.Reversed = True

sketch12 = doc.addObject("Sketcher::SketchObject", "Sketch011")
body.addObject(sketch12)
sketch12.AttachmentSupport = (doc.XZ_Plane, [""])
sketch12.MapMode = "FlatFace"
sketch12.AttachmentOffset = App.Placement(App.Vector(0, 0, -3), App.Rotation())
sketch12.addGeometry(Part.LineSegment(App.Vector(41, -70, 0), App.Vector(41, -67, 0)), False)
sketch12.addGeometry(Part.LineSegment(App.Vector(41, -67, 0), App.Vector(117, -67, 0)), False)
sketch12.addGeometry(Part.LineSegment(App.Vector(117, -67, 0), App.Vector(117, -70, 0)), False)
sketch12.addGeometry(Part.LineSegment(App.Vector(117, -70, 0), App.Vector(41, -70, 0)), False)
sketch12.addConstraint(Sketcher.Constraint("Coincident", 0, 2, 1, 1))
sketch12.addConstraint(Sketcher.Constraint("Coincident", 1, 2, 2, 1))
sketch12.addConstraint(Sketcher.Constraint("Coincident", 2, 2, 3, 1))
sketch12.addConstraint(Sketcher.Constraint("Coincident", 3, 2, 0, 1))
sketch12.addConstraint(Sketcher.Constraint("Vertical", 0))
sketch12.addConstraint(Sketcher.Constraint("Horizontal", 1))
sketch12.addConstraint(Sketcher.Constraint("Vertical", 2))
sketch12.addConstraint(Sketcher.Constraint("Horizontal", 3))
sketch12.addConstraint(Sketcher.Constraint("DistanceX", 1, 1, 1, 2, 76.0))
sketch12.addConstraint(Sketcher.Constraint("DistanceY", 0, 1, 0, 2, 3.0))
sketch12.addConstraint(Sketcher.Constraint("DistanceX", -1, 1, 0, 2, 41.0))
sketch12.addConstraint(Sketcher.Constraint("DistanceY", 0, 2, -1, 1, 67.0))
pad3 = doc.addObject("PartDesign::Pad", "Pad002")
body.addObject(pad3)
pad3.Profile = sketch12
pad3.Length = 15
pad3.Reversed = True

sketch13 = doc.addObject("Sketcher::SketchObject", "Sketch012")
body.addObject(sketch13)
sketch13.AttachmentSupport = (doc.XY_Plane, [""])
sketch13.MapMode = "FlatFace"
sketch13.AttachmentOffset = App.Placement(App.Vector(0, 0, -3), App.Rotation())
sketch13.addGeometry(Part.LineSegment(App.Vector(101, 48, 0), App.Vector(101, 18, 0)), False)
sketch13.addGeometry(Part.LineSegment(App.Vector(101, 18, 0), App.Vector(98, 18, 0)), False)
sketch13.addGeometry(Part.LineSegment(App.Vector(98, 18, 0), App.Vector(98, 48, 0)), False)
sketch13.addGeometry(Part.LineSegment(App.Vector(98, 48, 0), App.Vector(101, 48, 0)), False)
sketch13.addGeometry(Part.LineSegment(App.Vector(38, 48, 0), App.Vector(38, 18, 0)), False)
sketch13.addGeometry(Part.LineSegment(App.Vector(38, 18, 0), App.Vector(35, 18, 0)), False)
sketch13.addGeometry(Part.LineSegment(App.Vector(35, 18, 0), App.Vector(35, 48, 0)), False)
sketch13.addGeometry(Part.LineSegment(App.Vector(35, 48, 0), App.Vector(38, 48, 0)), False)
sketch13.addConstraint(Sketcher.Constraint("Coincident", 0, 2, 1, 1))
sketch13.addConstraint(Sketcher.Constraint("Coincident", 1, 2, 2, 1))
sketch13.addConstraint(Sketcher.Constraint("Coincident", 2, 2, 3, 1))
sketch13.addConstraint(Sketcher.Constraint("Coincident", 3, 2, 0, 1))
sketch13.addConstraint(Sketcher.Constraint("Coincident", 4, 2, 5, 1))
sketch13.addConstraint(Sketcher.Constraint("Coincident", 5, 2, 6, 1))
sketch13.addConstraint(Sketcher.Constraint("Coincident", 6, 2, 7, 1))
sketch13.addConstraint(Sketcher.Constraint("Coincident", 7, 2, 4, 1))
sketch13.addConstraint(Sketcher.Constraint("Vertical", 0))
sketch13.addConstraint(Sketcher.Constraint("Horizontal", 1))
sketch13.addConstraint(Sketcher.Constraint("Vertical", 2))
sketch13.addConstraint(Sketcher.Constraint("Horizontal", 3))
sketch13.addConstraint(Sketcher.Constraint("Vertical", 4))
sketch13.addConstraint(Sketcher.Constraint("Horizontal", 5))
sketch13.addConstraint(Sketcher.Constraint("Vertical", 6))
sketch13.addConstraint(Sketcher.Constraint("Horizontal", 7))
sketch13.addConstraint(Sketcher.Constraint("Horizontal", 1, 2, 4, 2))
sketch13.addConstraint(Sketcher.Constraint("Horizontal", 3, 2, 6, 2))
sketch13.addConstraint(Sketcher.Constraint("Equal", 3, 5))
sketch13.addConstraint(Sketcher.Constraint("DistanceX", 1, 2, 1, 1, 3.0))
sketch13.addConstraint(Sketcher.Constraint("DistanceY", 0, 2, 0, 1, 30.0))
sketch13.addConstraint(Sketcher.Constraint("DistanceX", -1, 1, 0, 2, 101.0))
sketch13.addConstraint(Sketcher.Constraint("DistanceY", -1, 1, 0, 2, 18.0))
sketch13.addConstraint(Sketcher.Constraint("DistanceX", -1, 1, 4, 2, 38.0))
pad4 = doc.addObject("PartDesign::Pad", "Pad003")
body.addObject(pad4)
pad4.Profile = sketch13
pad4.Length = 15
pad4.Reversed = True

sketch14 = doc.addObject("Sketcher::SketchObject", "Sketch013")
body.addObject(sketch14)
sketch14.AttachmentSupport = (doc.XY_Plane, [""])
sketch14.MapMode = "FlatFace"
sketch14.AttachmentOffset = App.Placement(App.Vector(0, 0, -3), App.Rotation())
sketch14.addGeometry(Part.Circle(App.Vector(20, 25, 0), App.Vector(0, 0, 1), 6), False)
sketch14.addConstraint(Sketcher.Constraint("Diameter", 0, 11.6))
sketch14.addConstraint(Sketcher.Constraint("DistanceX", -1, 1, 0, 3, 20.0))
sketch14.addConstraint(Sketcher.Constraint("DistanceY", -1, 1, 0, 3, 25.0))
pocket10 = doc.addObject("PartDesign::Pocket", "Pocket009")
body.addObject(pocket10)
pocket10.Profile = sketch14
pocket10.Length = 15
pocket10.Reversed = True

sketch15 = doc.addObject("Sketcher::SketchObject", "Sketch014")
body.addObject(sketch15)
sketch15.AttachmentSupport = (doc.XZ_Plane, [""])
sketch15.MapMode = "FlatFace"
sketch15.AttachmentOffset = App.Placement(App.Vector(0, 0, -100), App.Rotation())
sketch15.addGeometry(Part.Circle(App.Vector(25, -45, 0), App.Vector(0, 0, 1), 3.4), False)
sketch15.addGeometry(Part.Circle(App.Vector(45, -45, 0), App.Vector(0, 0, 1), 3.4), False)
sketch15.addGeometry(Part.Circle(App.Vector(65, -45, 0), App.Vector(0, 0, 1), 3.4), False)
sketch15.addGeometry(Part.Circle(App.Vector(85, -45, 0), App.Vector(0, 0, 1), 3.4), False)
sketch15.addGeometry(Part.Circle(App.Vector(105, -45, 0), App.Vector(0, 0, 1), 3.4), False)
sketch15.addConstraint(Sketcher.Constraint("Equal", 0, 1))
sketch15.addConstraint(Sketcher.Constraint("Equal", 1, 2))
sketch15.addConstraint(Sketcher.Constraint("Equal", 2, 3))
sketch15.addConstraint(Sketcher.Constraint("Equal", 3, 4))
sketch15.addConstraint(Sketcher.Constraint("Horizontal", 0, 3, 1, 3))
sketch15.addConstraint(Sketcher.Constraint("Horizontal", 1, 3, 2, 3))
sketch15.addConstraint(Sketcher.Constraint("Horizontal", 2, 3, 3, 3))
sketch15.addConstraint(Sketcher.Constraint("Horizontal", 3, 3, 4, 3))
sketch15.addConstraint(Sketcher.Constraint("Diameter", 0, 6.8))
sketch15.addConstraint(Sketcher.Constraint("DistanceX", -1, 1, 0, 3, 25.0))
sketch15.addConstraint(Sketcher.Constraint("DistanceY", 0, 3, -1, 1, 45.0))
sketch15.addConstraint(Sketcher.Constraint("DistanceX", -1, 1, 1, 3, 45.0))
sketch15.addConstraint(Sketcher.Constraint("DistanceX", -1, 1, 2, 3, 65.0))
sketch15.addConstraint(Sketcher.Constraint("DistanceX", -1, 1, 3, 3, 85.0))
sketch15.addConstraint(Sketcher.Constraint("DistanceX", -1, 1, 4, 3, 105.0))
pocket11 = doc.addObject("PartDesign::Pocket", "Pocket010")
body.addObject(pocket11)
pocket11.Profile = sketch15
pocket11.Length = 15
pocket11.Reversed = True

doc.recompute()
